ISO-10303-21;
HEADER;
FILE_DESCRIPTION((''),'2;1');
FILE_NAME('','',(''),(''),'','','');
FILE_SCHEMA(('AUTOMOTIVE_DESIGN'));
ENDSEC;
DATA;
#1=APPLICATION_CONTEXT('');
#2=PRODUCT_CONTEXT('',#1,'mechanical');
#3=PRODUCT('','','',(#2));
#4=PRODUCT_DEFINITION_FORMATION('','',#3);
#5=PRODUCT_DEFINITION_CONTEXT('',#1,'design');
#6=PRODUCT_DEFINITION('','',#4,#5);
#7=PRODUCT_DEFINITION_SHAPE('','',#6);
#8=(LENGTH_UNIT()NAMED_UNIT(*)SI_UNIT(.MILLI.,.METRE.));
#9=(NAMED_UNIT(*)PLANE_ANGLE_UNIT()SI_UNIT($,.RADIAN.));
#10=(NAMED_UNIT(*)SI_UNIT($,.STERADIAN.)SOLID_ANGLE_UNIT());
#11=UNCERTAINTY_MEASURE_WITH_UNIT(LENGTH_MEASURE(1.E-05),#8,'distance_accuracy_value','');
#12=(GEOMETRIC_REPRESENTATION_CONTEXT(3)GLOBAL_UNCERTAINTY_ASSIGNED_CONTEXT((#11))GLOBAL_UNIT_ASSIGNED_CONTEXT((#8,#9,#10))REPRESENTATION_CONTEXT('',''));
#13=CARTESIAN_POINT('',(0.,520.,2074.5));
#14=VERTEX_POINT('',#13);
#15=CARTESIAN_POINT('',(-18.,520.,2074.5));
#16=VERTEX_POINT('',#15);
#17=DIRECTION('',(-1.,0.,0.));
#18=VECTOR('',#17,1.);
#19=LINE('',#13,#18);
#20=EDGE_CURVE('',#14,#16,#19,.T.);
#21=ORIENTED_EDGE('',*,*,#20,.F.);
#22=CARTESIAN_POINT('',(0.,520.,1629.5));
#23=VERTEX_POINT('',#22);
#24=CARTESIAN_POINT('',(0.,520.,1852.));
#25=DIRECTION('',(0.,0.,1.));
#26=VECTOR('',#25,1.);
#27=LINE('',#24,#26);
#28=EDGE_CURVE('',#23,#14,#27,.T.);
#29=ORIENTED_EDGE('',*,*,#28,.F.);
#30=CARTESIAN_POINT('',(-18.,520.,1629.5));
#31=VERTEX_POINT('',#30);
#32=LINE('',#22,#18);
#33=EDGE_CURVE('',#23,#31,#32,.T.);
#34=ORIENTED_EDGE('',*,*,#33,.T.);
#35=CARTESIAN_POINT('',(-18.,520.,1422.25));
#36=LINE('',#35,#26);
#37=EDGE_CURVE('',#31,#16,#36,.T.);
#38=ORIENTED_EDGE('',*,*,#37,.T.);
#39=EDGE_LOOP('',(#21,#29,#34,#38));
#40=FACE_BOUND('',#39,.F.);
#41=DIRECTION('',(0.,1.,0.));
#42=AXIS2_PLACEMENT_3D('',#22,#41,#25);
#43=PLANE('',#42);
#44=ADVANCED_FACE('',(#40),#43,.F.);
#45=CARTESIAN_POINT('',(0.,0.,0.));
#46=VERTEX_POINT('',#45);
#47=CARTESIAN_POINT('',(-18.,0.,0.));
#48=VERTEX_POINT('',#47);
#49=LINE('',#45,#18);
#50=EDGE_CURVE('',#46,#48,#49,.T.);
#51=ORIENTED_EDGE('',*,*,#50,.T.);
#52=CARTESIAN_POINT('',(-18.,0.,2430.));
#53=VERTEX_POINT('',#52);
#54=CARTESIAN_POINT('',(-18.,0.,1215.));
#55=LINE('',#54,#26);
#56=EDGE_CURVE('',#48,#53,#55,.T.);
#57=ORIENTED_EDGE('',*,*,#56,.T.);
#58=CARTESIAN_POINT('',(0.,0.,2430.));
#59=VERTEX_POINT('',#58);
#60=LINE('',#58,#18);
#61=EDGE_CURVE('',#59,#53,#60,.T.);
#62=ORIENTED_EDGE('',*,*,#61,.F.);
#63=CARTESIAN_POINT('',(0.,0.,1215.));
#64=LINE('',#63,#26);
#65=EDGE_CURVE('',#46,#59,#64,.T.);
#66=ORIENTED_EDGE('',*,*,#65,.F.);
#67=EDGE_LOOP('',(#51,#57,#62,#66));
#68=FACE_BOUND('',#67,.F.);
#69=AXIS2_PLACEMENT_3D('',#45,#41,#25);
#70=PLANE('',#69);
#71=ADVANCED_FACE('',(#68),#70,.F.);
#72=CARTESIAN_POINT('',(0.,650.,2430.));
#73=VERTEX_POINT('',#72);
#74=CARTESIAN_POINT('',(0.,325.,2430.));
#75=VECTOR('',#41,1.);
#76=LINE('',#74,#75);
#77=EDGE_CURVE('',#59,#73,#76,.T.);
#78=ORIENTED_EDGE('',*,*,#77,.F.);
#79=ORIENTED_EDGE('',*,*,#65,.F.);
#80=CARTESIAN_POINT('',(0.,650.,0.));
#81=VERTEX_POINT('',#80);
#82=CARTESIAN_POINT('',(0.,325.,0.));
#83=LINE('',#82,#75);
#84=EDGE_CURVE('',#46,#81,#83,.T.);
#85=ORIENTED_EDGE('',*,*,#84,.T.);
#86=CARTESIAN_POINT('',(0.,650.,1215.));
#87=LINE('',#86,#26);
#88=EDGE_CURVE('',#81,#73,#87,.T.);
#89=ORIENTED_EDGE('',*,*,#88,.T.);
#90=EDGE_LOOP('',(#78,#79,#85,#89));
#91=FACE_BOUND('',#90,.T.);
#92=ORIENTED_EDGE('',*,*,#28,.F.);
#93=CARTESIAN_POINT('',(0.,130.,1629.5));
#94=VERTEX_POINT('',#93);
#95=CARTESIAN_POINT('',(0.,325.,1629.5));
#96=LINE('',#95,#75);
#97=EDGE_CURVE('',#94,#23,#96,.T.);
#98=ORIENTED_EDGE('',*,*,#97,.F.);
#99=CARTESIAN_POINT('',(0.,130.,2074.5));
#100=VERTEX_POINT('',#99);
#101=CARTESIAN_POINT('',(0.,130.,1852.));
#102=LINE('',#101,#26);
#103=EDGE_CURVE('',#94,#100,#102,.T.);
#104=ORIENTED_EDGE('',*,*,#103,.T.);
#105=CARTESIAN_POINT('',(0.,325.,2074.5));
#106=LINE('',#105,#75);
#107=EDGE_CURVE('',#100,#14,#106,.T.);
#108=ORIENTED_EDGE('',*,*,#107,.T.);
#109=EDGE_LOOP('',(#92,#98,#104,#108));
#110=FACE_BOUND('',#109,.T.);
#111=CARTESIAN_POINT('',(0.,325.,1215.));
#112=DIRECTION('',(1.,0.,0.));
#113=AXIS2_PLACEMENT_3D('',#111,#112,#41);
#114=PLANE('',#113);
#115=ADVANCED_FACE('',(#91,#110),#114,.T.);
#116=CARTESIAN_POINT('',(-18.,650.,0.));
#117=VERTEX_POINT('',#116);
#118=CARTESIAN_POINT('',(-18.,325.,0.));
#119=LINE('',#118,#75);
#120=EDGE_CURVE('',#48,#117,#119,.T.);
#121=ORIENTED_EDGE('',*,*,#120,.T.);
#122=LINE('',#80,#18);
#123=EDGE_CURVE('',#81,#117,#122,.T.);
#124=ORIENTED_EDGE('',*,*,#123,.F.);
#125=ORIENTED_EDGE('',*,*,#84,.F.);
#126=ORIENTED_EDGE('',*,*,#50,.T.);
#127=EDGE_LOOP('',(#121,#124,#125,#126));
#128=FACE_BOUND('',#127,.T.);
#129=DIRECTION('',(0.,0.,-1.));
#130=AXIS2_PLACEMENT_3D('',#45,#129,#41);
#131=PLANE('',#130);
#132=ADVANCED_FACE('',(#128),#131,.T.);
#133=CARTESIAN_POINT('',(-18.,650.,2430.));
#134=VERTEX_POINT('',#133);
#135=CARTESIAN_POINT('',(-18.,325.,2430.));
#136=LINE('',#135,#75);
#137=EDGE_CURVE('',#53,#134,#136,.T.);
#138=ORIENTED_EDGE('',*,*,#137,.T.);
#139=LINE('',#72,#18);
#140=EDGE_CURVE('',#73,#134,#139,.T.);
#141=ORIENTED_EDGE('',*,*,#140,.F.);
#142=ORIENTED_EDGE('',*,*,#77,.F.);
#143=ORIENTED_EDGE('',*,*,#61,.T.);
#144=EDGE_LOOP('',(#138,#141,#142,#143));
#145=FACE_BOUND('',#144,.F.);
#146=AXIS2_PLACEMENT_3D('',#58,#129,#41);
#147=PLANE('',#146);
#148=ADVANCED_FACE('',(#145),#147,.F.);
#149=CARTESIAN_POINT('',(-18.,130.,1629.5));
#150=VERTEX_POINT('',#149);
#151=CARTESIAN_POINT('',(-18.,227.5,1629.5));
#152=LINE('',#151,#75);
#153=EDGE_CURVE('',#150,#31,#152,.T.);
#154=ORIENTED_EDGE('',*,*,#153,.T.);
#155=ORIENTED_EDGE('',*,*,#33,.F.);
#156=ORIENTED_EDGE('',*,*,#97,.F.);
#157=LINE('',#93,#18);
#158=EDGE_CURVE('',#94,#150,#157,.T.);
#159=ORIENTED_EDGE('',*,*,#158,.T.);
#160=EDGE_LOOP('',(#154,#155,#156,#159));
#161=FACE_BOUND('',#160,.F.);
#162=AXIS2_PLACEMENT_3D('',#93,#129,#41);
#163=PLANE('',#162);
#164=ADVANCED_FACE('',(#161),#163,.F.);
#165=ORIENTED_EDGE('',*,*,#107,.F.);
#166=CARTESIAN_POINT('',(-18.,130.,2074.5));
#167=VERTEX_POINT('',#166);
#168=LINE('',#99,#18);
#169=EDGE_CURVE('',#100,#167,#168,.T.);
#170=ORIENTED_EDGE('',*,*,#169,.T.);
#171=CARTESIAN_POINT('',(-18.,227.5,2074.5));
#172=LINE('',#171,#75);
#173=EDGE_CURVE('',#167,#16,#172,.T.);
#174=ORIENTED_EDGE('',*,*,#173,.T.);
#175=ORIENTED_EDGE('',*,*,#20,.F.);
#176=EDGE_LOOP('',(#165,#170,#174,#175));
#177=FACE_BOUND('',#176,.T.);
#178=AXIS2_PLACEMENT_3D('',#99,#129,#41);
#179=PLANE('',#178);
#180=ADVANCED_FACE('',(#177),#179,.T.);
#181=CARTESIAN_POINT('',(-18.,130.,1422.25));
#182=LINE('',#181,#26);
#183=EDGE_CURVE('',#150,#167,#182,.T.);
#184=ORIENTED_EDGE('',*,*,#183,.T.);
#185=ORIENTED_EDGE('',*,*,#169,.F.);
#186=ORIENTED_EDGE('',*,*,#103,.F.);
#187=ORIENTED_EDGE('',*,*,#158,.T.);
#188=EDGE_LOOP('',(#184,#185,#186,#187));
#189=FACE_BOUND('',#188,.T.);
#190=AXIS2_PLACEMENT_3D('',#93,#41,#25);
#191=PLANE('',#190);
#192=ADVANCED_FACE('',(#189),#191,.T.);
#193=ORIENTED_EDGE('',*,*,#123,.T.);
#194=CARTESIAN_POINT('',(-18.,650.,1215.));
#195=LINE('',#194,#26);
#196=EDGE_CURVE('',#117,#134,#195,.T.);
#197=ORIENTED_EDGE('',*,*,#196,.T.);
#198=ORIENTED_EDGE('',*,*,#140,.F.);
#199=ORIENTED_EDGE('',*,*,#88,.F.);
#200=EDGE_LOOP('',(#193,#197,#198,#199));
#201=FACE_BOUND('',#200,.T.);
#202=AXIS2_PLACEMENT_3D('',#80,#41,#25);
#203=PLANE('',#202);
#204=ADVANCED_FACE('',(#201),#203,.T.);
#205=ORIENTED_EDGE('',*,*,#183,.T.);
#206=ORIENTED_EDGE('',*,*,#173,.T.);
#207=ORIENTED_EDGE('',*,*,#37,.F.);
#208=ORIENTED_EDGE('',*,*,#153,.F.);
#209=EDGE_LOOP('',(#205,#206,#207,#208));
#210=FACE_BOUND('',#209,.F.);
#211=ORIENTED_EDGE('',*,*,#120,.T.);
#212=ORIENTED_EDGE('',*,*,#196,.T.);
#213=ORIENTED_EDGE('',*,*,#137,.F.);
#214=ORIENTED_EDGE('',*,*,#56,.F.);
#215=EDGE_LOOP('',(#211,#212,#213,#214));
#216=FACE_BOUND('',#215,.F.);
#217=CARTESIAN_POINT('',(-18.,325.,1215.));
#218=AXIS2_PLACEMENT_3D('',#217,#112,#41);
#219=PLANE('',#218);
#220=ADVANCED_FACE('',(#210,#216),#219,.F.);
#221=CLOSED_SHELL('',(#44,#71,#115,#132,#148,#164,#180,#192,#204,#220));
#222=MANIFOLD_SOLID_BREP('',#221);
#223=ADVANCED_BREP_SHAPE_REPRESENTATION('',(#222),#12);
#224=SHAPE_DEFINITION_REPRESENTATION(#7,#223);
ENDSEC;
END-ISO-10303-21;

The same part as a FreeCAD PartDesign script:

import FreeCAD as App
import Part
import Sketcher
from FreeCAD import Vector
Q = App.Units.Quantity


def add_polygon(sketch, points):
    """Adds a closed chain of lines whose ends are joined by coincident constraints."""
    first, n = sketch.GeometryCount, len(points)
    for a, b in zip(points, points[1:] + points[:1]):
        sketch.addGeometry(Part.LineSegment(App.Vector(*a, 0), App.Vector(*b, 0)), False)
    for i in range(n):
        sketch.addConstraint(Sketcher.Constraint("Coincident", first + i, 2, first + (i + 1) % n, 1))

doc = App.newDocument("Part")
body = doc.addObject("PartDesign::Body", "Body")

sketch1 = body.newObject("Sketcher::SketchObject", "Sketch")
sketch1.AttachmentSupport = (doc.getObject("YZ_Plane"), [""])
sketch1.MapMode = "FlatFace"
add_polygon(sketch1, [(0, 2430), (0, 0), (650, 0), (650, 2430)])
sketch1.addConstraint([
    Sketcher.Constraint("Vertical", 0),
    Sketcher.Constraint("Horizontal", 1),
    Sketcher.Constraint("Vertical", 2),
    Sketcher.Constraint("Horizontal", 3),
    Sketcher.Constraint("Coincident", 0, 2, -1, 1),
    Sketcher.Constraint("DistanceX", 1, 1, 1, 2, Q("650 mm")),
    Sketcher.Constraint("DistanceY", 0, 2, 0, 1, Q("2430 mm")),
])
pad1 = body.newObject("PartDesign::Pad", "Pad")
pad1.Profile = sketch1
pad1.Length = 18
pad1.Reversed = True

sketch2 = body.newObject("Sketcher::SketchObject", "Sketch001")
sketch2.AttachmentSupport = (doc.getObject("YZ_Plane"), [""])
sketch2.MapMode = "FlatFace"
add_polygon(sketch2, [(130, 2074.5), (130, 1629.5), (520, 1629.5), (520, 2074.5)])
sketch2.addConstraint([
    Sketcher.Constraint("Vertical", 0),
    Sketcher.Constraint("Horizontal", 1),
    Sketcher.Constraint("Vertical", 2),
    Sketcher.Constraint("Horizontal", 3),
    Sketcher.Constraint("DistanceX", 1, 1, 1, 2, Q("390 mm")),
    Sketcher.Constraint("DistanceY", 0, 2, 0, 1, Q("445 mm")),
    Sketcher.Constraint("DistanceX", -1, 1, 0, 2, Q("130 mm")),
    Sketcher.Constraint("DistanceY", -1, 1, 0, 2, Q("1629.5 mm")),
])
pocket1 = body.newObject("PartDesign::Pocket", "Pocket")
pocket1.Profile = sketch2
pocket1.Type = "ThroughAll"

doc.recompute()
